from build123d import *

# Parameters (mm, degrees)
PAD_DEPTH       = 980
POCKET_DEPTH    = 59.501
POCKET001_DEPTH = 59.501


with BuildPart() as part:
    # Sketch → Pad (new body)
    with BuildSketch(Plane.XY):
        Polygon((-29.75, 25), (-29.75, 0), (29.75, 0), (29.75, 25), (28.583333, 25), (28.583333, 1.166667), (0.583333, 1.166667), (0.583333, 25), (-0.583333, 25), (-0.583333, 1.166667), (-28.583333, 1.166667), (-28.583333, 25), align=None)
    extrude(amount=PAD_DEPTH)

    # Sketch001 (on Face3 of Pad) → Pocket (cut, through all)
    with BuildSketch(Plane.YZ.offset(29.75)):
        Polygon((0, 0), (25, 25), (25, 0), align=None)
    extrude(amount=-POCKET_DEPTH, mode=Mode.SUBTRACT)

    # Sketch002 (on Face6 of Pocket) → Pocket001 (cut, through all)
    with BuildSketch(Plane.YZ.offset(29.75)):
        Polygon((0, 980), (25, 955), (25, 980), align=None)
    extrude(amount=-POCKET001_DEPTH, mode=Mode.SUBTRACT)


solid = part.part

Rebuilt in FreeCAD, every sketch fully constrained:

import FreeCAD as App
import Part
import Sketcher

V = App.Vector


def add_polygon(sketch, points):
    """Adds a closed chain of lines whose ends are joined by coincident constraints."""
    first, n = sketch.GeometryCount, len(points)
    for a, b in zip(points, points[1:] + points[:1]):
        sketch.addGeometry(Part.LineSegment(App.Vector(*a, 0), App.Vector(*b, 0)), False)
    for i in range(n):
        sketch.addConstraint(Sketcher.Constraint("Coincident", first + i, 2, first + (i + 1) % n, 1))

doc = App.newDocument("Part")
params = doc.addObject("Spreadsheet::Sheet", "Params")
for row, (alias, value) in enumerate([
    ("sketch1_width", "28 mm"),
    ("sketch1_height", "25 mm"),
    ("sketch1_width2", "59.5 mm"),
    ("pad1_length", "980 mm"),
    ("sketch2_width", "25 mm"),
    ("sketch3_width", "25 mm"),
], start=1):
    params.set(f"A{row}", alias)
    params.set(f"B{row}", "=" + value)
    params.setAlias(f"B{row}", alias)

body = doc.addObject("PartDesign::Body", "Body")

sketch1 = doc.addObject("Sketcher::SketchObject", "Sketch")
body.addObject(sketch1)
sketch1.AttachmentSupport = (doc.XY_Plane, [""])
sketch1.MapMode = "FlatFace"
add_polygon(sketch1, [(-29.8, 25), (-29.8, 0), (29.8, 0), (29.8, 25), (28.6, 25), (28.6, 1.2), (0.6, 1.2), (0.6, 25), (-0.6, 25), (-0.6, 1.2), (-28.6, 1.2), (-28.6, 25)])
sketch1.addConstraint(Sketcher.Constraint("Vertical", 0))
sketch1.addConstraint(Sketcher.Constraint("Horizontal", 1))
sketch1.addConstraint(Sketcher.Constraint("Vertical", 2))
sketch1.addConstraint(Sketcher.Constraint("Horizontal", 3))
sketch1.addConstraint(Sketcher.Constraint("Vertical", 4))
sketch1.addConstraint(Sketcher.Constraint("Horizontal", 5))
sketch1.addConstraint(Sketcher.Constraint("Vertical", 6))
sketch1.addConstraint(Sketcher.Constraint("Horizontal", 7))
sketch1.addConstraint(Sketcher.Constraint("Vertical", 8))
sketch1.addConstraint(Sketcher.Constraint("Horizontal", 9))
sketch1.addConstraint(Sketcher.Constraint("Vertical", 10))
sketch1.addConstraint(Sketcher.Constraint("Horizontal", 11))
sketch1.addConstraint(Sketcher.Constraint("Symmetric", 0, 2, 1, 2, -1, 1))
sketch1.addConstraint(Sketcher.Constraint("Symmetric", 5, 2, 8, 2, -2))
sketch1.addConstraint(Sketcher.Constraint("Symmetric", 3, 2, 10, 2, -2))
sketch1.addConstraint(Sketcher.Constraint("Horizontal", 3, 2, 6, 2))
sketch1.addConstraint(Sketcher.Constraint("Equal", 3, 7))
sketch1.addConstraint(Sketcher.Constraint("DistanceX", 5, 2, 5, 1, 28.0))
sketch1.addConstraint(Sketcher.Constraint("DistanceY", 0, 2, 0, 1, 25.0))
sketch1.addConstraint(Sketcher.Constraint("DistanceX", 1, 1, 1, 2, 59.5))
sketch1.addConstraint(Sketcher.Constraint("DistanceY", 4, 2, 4, 1, 23.833333))
sketch1.setExpression("Constraints[29]", "Params.sketch1_width")
sketch1.setExpression("Constraints[30]", "Params.sketch1_height")
sketch1.setExpression("Constraints[31]", "Params.sketch1_width2")
pad1 = doc.addObject("PartDesign::Pad", "Pad")
body.addObject(pad1)
pad1.Profile = sketch1
pad1.setExpression("Length", "Params.pad1_length")

sketch2 = doc.addObject("Sketcher::SketchObject", "Sketch001")
body.addObject(sketch2)
sketch2.AttachmentSupport = (doc.YZ_Plane, [""])
sketch2.MapMode = "FlatFace"
sketch2.AttachmentOffset = App.Placement(V(0, 0, 29.75), App.Rotation())
add_polygon(sketch2, [(25, 25), (0, 0), (25, 0)])
sketch2.addConstraint(Sketcher.Constraint("Horizontal", 1))
sketch2.addConstraint(Sketcher.Constraint("Vertical", 2))
sketch2.addConstraint(Sketcher.Constraint("Coincident", 0, 2, -1, 1))
sketch2.addConstraint(Sketcher.Constraint("Equal", 1, 2))
sketch2.addConstraint(Sketcher.Constraint("DistanceX", 1, 1, 1, 2, 25.0))
sketch2.setExpression("Constraints[7]", "Params.sketch2_width")
pocket1 = doc.addObject("PartDesign::Pocket", "Pocket")
body.addObject(pocket1)
pocket1.Profile = sketch2
pocket1.Type = "ThroughAll"

sketch3 = doc.addObject("Sketcher::SketchObject", "Sketch002")
body.addObject(sketch3)
sketch3.AttachmentSupport = (doc.YZ_Plane, [""])
sketch3.MapMode = "FlatFace"
sketch3.AttachmentOffset = App.Placement(V(0, 0, 29.75), App.Rotation())
add_polygon(sketch3, [(0, 980), (25, 955), (25, 980)])
sketch3.addConstraint(Sketcher.Constraint("Vertical", 1))
sketch3.addConstraint(Sketcher.Constraint("Horizontal", 2))
sketch3.addConstraint(Sketcher.Constraint("PointOnObject", 2, 2, -2))
sketch3.addConstraint(Sketcher.Constraint("Equal", 2, 1))
sketch3.addConstraint(Sketcher.Constraint("DistanceX", 2, 2, 2, 1, 25.0))
sketch3.addConstraint(Sketcher.Constraint("DistanceY", -1, 1, 0, 2, 955.0))
sketch3.setExpression("Constraints[7]", "Params.sketch3_width")
pocket2 = doc.addObject("PartDesign::Pocket", "Pocket001")
body.addObject(pocket2)
pocket2.Profile = sketch3
pocket2.Type = "ThroughAll"

doc.recompute()
